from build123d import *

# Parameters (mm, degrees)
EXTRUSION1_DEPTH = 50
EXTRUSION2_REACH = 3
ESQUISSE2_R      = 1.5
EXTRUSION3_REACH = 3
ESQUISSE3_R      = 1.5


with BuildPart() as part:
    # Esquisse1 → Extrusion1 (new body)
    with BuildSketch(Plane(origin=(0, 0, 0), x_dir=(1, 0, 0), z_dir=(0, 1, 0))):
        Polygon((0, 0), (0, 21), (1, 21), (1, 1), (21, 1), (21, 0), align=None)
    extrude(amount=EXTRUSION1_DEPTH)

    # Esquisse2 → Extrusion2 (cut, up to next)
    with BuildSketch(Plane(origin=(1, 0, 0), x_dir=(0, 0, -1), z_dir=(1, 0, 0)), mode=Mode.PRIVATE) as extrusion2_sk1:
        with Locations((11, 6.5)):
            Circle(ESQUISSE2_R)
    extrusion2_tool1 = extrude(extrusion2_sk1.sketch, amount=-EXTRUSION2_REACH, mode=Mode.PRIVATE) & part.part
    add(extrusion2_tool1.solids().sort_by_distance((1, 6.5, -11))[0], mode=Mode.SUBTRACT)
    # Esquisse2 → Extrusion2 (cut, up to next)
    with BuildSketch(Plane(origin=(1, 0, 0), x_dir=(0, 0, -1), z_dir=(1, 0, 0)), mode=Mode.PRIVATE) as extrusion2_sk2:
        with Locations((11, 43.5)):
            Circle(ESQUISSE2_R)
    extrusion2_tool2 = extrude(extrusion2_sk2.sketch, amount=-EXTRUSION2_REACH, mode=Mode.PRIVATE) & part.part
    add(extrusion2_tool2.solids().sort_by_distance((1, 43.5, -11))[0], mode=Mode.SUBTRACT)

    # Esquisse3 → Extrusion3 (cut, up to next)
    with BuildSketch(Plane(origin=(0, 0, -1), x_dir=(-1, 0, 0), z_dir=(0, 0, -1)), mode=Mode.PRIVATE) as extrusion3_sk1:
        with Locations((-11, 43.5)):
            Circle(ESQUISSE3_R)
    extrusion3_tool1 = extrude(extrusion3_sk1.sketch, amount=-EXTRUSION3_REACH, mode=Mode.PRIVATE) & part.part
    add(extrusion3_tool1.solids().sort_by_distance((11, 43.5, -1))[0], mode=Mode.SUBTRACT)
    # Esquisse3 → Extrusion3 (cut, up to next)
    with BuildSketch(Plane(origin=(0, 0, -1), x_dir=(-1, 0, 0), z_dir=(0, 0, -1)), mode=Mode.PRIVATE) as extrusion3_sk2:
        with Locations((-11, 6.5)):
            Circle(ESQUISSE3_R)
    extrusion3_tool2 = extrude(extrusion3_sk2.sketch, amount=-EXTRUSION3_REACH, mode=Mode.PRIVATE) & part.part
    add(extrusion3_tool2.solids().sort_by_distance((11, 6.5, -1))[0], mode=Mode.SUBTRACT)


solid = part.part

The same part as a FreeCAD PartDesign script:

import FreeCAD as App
import Part
import Sketcher
from FreeCAD import Vector
Q = App.Units.Quantity

doc = App.newDocument("Part")
body = doc.addObject("PartDesign::Body", "Body")

sketch1 = body.newObject("Sketcher::SketchObject", "Sketch")
sketch1.AttachmentSupport = (doc.getObject("XZ_Plane"), [""])
sketch1.MapMode = "FlatFace"
sketch1.addGeometry([
    Part.LineSegment(Vector(0, -21, 0), Vector(0, 0, 0)),
    Part.LineSegment(Vector(0, 0, 0), Vector(21, 0, 0)),
    Part.LineSegment(Vector(21, 0, 0), Vector(21, -1, 0)),
    Part.LineSegment(Vector(21, -1, 0), Vector(1, -1, 0)),
    Part.LineSegment(Vector(1, -1, 0), Vector(1, -21, 0)),
    Part.LineSegment(Vector(1, -21, 0), Vector(0, -21, 0)),
], False)
sketch1.addConstraint([
    Sketcher.Constraint("Coincident", 0, 2, 1, 1),
    Sketcher.Constraint("Coincident", 1, 2, 2, 1),
    Sketcher.Constraint("Coincident", 2, 2, 3, 1),
    Sketcher.Constraint("Coincident", 3, 2, 4, 1),
    Sketcher.Constraint("Coincident", 4, 2, 5, 1),
    Sketcher.Constraint("Coincident", 5, 2, 0, 1),
    Sketcher.Constraint("Vertical", 0),
    Sketcher.Constraint("Horizontal", 1),
    Sketcher.Constraint("Vertical", 2),
    Sketcher.Constraint("Horizontal", 3),
    Sketcher.Constraint("Vertical", 4),
    Sketcher.Constraint("Horizontal", 5),
    Sketcher.Constraint("Coincident", 0, 2, -1, 1),
    Sketcher.Constraint("Equal", 1, 0),
    Sketcher.Constraint("Equal", 5, 2),
    Sketcher.Constraint("DistanceX", 1, 1, 1, 2, Q("21 mm")),
    Sketcher.Constraint("DistanceX", 3, 2, 3, 1, Q("20 mm")),
])
pad1 = body.newObject("PartDesign::Pad", "Pad")
pad1.Profile = sketch1
pad1.Length = 50
pad1.Reversed = True

sketch2 = body.newObject("Sketcher::SketchObject", "Sketch001")
sketch2.AttachmentSupport = (doc.getObject("YZ_Plane"), [""])
sketch2.MapMode = "FlatFace"
sketch2.AttachmentOffset = App.Placement(Vector(0, 0, 1), App.Rotation())
sketch2.addGeometry(Part.Circle(Vector(6.5, -11, 0), Vector(0, 0, 1), 1.5), False)
sketch2.addConstraint([
    Sketcher.Constraint("Diameter", 0, Q("3 mm")),
    Sketcher.Constraint("DistanceY", 0, 3, -1, 1, Q("11 mm")),
    Sketcher.Constraint("DistanceX", -1, 1, 0, 3, Q("6.5 mm")),
])
pocket1 = body.newObject("PartDesign::Pocket", "Pocket")
pocket1.Profile = sketch2
pocket1.Type = "UpToFirst"

sketch3 = body.newObject("Sketcher::SketchObject", "Sketch002")
sketch3.AttachmentSupport = (doc.getObject("YZ_Plane"), [""])
sketch3.MapMode = "FlatFace"
sketch3.AttachmentOffset = App.Placement(Vector(0, 0, 1), App.Rotation())
sketch3.addGeometry(Part.Circle(Vector(43.5, -11, 0), Vector(0, 0, 1), 1.5), False)
sketch3.addConstraint([
    Sketcher.Constraint("Diameter", 0, Q("3 mm")),
    Sketcher.Constraint("DistanceY", 0, 3, -1, 1, Q("11 mm")),
    Sketcher.Constraint("DistanceX", -1, 1, 0, 3, Q("43.5 mm")),
])
pocket2 = body.newObject("PartDesign::Pocket", "Pocket001")
pocket2.Profile = sketch3
pocket2.Type = "UpToFirst"

sketch4 = body.newObject("Sketcher::SketchObject", "Sketch003")
sketch4.AttachmentSupport = (doc.getObject("XY_Plane"), [""])
sketch4.MapMode = "FlatFace"
sketch4.AttachmentOffset = App.Placement(Vector(0, 0, -1), App.Rotation())
sketch4.addGeometry(Part.Circle(Vector(11, 43.5, 0), Vector(0, 0, 1), 1.5), False)
sketch4.addConstraint([
    Sketcher.Constraint("Diameter", 0, Q("3 mm")),
    Sketcher.Constraint("DistanceX", -1, 1, 0, 3, Q("11 mm")),
    Sketcher.Constraint("DistanceY", -1, 1, 0, 3, Q("43.5 mm")),
])
pocket3 = body.newObject("PartDesign::Pocket", "Pocket002")
pocket3.Profile = sketch4
pocket3.Type = "UpToFirst"
pocket3.Reversed = True

sketch5 = body.newObject("Sketcher::SketchObject", "Sketch004")
sketch5.AttachmentSupport = (doc.getObject("XY_Plane"), [""])
sketch5.MapMode = "FlatFace"
sketch5.AttachmentOffset = App.Placement(Vector(0, 0, -1), App.Rotation())
sketch5.addGeometry(Part.Circle(Vector(11, 6.5, 0), Vector(0, 0, 1), 1.5), False)
sketch5.addConstraint([
    Sketcher.Constraint("Diameter", 0, Q("3 mm")),
    Sketcher.Constraint("DistanceX", -1, 1, 0, 3, Q("11 mm")),
    Sketcher.Constraint("DistanceY", -1, 1, 0, 3, Q("6.5 mm")),
])
pocket4 = body.newObject("PartDesign::Pocket", "Pocket003")
pocket4.Profile = sketch5
pocket4.Type = "UpToFirst"
pocket4.Reversed = True

doc.recompute()
